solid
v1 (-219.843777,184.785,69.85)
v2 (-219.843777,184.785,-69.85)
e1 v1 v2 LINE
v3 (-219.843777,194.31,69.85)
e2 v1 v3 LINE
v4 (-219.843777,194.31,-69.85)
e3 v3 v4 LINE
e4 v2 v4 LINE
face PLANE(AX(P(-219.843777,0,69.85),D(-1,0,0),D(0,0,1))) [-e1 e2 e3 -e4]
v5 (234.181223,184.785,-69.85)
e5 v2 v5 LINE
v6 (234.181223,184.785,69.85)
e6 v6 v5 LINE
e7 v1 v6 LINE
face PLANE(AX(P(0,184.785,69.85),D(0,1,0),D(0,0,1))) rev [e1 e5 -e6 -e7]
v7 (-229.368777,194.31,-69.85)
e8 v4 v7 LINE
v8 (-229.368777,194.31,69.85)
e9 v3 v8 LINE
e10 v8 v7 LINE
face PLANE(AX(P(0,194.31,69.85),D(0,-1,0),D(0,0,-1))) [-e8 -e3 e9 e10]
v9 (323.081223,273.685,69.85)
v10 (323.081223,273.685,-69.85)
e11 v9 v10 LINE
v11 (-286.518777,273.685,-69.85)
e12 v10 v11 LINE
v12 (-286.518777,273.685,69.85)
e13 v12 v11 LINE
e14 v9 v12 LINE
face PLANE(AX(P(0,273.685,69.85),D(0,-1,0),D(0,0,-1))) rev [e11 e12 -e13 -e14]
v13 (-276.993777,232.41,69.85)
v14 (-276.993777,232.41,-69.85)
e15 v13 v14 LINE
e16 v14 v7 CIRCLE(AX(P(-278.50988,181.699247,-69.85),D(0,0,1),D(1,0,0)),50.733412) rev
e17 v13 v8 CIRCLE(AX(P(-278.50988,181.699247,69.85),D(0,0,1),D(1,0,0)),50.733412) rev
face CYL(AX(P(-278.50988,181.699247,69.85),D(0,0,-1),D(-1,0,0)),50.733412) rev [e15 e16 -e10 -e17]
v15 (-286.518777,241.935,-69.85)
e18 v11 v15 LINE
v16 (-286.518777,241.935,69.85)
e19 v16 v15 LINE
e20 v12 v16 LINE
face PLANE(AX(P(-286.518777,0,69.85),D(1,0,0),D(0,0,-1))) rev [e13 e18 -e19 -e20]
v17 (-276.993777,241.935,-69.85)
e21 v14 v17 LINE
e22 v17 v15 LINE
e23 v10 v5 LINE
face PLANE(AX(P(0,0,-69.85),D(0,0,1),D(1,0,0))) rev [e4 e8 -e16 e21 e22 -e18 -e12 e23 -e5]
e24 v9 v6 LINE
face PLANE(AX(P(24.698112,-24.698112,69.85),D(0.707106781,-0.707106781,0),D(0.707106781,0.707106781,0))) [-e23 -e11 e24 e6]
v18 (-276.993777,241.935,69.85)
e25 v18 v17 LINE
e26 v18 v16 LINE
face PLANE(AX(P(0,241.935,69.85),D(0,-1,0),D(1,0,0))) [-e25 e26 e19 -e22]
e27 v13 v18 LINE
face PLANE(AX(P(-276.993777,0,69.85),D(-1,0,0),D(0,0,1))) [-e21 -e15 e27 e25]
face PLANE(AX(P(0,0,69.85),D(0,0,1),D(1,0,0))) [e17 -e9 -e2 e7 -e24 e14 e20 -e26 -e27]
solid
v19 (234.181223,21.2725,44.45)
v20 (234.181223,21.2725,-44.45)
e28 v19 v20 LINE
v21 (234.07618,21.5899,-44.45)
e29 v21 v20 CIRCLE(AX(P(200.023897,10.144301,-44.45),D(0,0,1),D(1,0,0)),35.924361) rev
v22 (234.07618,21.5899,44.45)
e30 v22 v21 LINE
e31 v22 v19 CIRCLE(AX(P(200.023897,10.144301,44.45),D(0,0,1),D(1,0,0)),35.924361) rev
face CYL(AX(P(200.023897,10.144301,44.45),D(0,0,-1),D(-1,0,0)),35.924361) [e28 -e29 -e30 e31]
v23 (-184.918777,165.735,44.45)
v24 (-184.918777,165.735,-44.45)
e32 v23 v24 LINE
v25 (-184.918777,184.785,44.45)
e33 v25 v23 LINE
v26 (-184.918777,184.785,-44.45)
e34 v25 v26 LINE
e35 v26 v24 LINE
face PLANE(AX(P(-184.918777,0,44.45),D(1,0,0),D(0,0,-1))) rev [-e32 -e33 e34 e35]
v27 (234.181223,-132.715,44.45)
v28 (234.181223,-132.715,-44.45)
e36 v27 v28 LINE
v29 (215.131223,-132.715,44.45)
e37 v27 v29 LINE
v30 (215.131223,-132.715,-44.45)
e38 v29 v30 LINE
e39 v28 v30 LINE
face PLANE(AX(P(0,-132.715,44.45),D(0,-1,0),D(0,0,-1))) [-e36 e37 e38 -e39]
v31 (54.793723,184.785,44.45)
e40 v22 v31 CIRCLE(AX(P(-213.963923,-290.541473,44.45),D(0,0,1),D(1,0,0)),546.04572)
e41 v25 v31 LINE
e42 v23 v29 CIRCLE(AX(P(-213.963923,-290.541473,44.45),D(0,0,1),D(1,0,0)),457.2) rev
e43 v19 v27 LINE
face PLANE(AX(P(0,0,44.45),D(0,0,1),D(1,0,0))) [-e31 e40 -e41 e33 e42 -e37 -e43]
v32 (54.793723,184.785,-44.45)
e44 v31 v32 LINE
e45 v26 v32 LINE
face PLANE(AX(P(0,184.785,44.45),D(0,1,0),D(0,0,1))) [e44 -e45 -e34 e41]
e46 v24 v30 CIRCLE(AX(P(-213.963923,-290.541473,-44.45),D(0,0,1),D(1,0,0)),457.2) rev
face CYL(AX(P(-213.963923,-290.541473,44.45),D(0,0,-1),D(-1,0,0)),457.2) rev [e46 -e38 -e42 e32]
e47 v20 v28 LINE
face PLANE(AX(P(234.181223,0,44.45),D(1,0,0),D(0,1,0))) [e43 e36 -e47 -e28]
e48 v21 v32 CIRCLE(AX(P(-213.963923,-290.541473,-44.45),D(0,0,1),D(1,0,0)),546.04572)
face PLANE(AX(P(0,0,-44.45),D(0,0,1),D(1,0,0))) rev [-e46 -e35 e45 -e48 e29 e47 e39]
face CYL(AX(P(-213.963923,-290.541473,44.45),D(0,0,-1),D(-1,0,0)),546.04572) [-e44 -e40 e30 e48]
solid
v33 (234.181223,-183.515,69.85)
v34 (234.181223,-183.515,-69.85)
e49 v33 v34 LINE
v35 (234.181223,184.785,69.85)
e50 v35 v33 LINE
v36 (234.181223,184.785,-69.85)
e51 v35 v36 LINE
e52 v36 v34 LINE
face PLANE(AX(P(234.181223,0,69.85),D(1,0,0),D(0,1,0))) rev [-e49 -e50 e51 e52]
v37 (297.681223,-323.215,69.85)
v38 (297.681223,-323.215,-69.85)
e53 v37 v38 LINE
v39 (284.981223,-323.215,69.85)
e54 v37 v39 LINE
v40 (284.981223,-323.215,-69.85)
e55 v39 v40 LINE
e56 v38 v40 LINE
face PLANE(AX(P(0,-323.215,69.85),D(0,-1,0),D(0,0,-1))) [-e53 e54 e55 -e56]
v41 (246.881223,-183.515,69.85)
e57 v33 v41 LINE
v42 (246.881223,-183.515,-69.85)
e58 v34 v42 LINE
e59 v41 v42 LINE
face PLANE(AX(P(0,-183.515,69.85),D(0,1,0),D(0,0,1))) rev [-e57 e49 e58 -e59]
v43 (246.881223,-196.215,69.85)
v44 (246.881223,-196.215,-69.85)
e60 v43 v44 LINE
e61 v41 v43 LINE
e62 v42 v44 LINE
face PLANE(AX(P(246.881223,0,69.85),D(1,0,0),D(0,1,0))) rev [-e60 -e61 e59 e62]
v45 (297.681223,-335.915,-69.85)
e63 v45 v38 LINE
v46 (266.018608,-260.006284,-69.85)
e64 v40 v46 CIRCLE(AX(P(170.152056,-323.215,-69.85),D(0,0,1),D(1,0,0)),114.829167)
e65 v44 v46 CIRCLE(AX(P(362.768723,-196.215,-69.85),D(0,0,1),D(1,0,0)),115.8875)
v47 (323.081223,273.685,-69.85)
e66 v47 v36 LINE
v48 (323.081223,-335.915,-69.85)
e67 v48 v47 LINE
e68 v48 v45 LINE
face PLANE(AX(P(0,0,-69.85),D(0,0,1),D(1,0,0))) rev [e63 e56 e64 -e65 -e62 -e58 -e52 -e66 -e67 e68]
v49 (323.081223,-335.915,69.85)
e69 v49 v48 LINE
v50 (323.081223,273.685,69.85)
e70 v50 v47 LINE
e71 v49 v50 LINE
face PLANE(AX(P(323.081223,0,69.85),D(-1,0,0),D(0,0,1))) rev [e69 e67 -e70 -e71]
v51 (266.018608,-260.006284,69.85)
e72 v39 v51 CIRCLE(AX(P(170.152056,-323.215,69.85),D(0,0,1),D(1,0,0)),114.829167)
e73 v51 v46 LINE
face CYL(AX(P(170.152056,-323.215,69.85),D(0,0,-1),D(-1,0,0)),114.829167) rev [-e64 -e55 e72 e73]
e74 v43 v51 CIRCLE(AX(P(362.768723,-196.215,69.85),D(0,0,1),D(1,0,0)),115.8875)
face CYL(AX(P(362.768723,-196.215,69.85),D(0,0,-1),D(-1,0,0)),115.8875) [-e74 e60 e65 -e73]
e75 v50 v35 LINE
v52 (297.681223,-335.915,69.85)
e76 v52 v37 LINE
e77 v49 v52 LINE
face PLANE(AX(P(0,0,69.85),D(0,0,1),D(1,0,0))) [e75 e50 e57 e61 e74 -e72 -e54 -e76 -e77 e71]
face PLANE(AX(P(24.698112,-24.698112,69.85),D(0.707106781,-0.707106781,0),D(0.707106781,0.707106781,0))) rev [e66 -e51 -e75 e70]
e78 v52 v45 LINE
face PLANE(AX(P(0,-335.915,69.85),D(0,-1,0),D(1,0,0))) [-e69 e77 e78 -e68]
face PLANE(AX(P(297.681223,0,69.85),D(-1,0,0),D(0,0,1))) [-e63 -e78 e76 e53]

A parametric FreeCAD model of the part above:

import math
import FreeCAD as App
import Part
import Sketcher

V = App.Vector
Q = App.Units.Quantity

doc = App.newDocument("Part")
body = doc.addObject("PartDesign::Body", "Body")

# Sketch on XY plane
sketch1 = body.newObject("Sketcher::SketchObject", "Sketch")
sketch1.AttachmentSupport = (doc.getObject("XY_Plane"), [""])
sketch1.MapMode = "FlatFace"
sketch1.addGeometry([
    Part.LineSegment(V(-277, 242, 0), V(-277, 232, 0)),  # 0
    Part.ArcOfCircle(Part.Circle(V(-279, 182, 0), V(0, 0, 1), 51), math.radians(14), math.radians(88)),  # 1
    Part.LineSegment(V(-229, 194, 0), V(-220, 194, 0)),  # 2
    Part.LineSegment(V(-220, 194, 0), V(-220, 185, 0)),  # 3
    Part.LineSegment(V(-220, 185, 0), V(234, 185, 0)),  # 4
    Part.LineSegment(V(234, 185, 0), V(323, 274, 0)),  # 5
    Part.LineSegment(V(323, 274, 0), V(-287, 274, 0)),  # 6
    Part.LineSegment(V(-287, 274, 0), V(-287, 242, 0)),  # 7
    Part.LineSegment(V(-287, 242, 0), V(-277, 242, 0)),  # 8
], False)
sketch1.addConstraint([
    Sketcher.Constraint("Coincident", 0, 2, 1, 2),
    Sketcher.Constraint("Coincident", 1, 1, 2, 1),
    Sketcher.Constraint("Coincident", 2, 2, 3, 1),
    Sketcher.Constraint("Coincident", 3, 2, 4, 1),
    Sketcher.Constraint("Coincident", 4, 2, 5, 1),
    Sketcher.Constraint("Coincident", 5, 2, 6, 1),
    Sketcher.Constraint("Coincident", 6, 2, 7, 1),
    Sketcher.Constraint("Coincident", 7, 2, 8, 1),
    Sketcher.Constraint("Coincident", 8, 2, 0, 1),
    Sketcher.Constraint("Vertical", 0),
    Sketcher.Constraint("Horizontal", 2),
    Sketcher.Constraint("Vertical", 3),
    Sketcher.Constraint("Horizontal", 4),
    Sketcher.Constraint("Horizontal", 6),
    Sketcher.Constraint("Vertical", 7),
    Sketcher.Constraint("Horizontal", 8),
    Sketcher.Constraint("Equal", 2, 8),
    Sketcher.Constraint("Equal", 8, 0),
    Sketcher.Constraint("Equal", 0, 3),
    Sketcher.Constraint("DistanceX", 6, 2, 6, 1, Q("24 in")),
    Sketcher.Constraint("Angle", 5, Q("45 deg")),
    Sketcher.Constraint("DistanceY", 7, 2, 7, 1, Q("1.25 in")),
    Sketcher.Constraint("DistanceY", 1, 1, 0, 2, Q("1.5 in")),
    Sketcher.Constraint("DistanceX", 4, 2, 5, 2, Q("3.5 in")),
    Sketcher.Constraint("DistanceX", 4, 1, 4, 2, Q("17.875 in")),
    Sketcher.Constraint("DistanceY", -1, 1, 0, 2, Q("9.15 in")),
    Sketcher.Constraint("Radius", 1, 50.733412),
    Sketcher.Constraint("DistanceX", 1, 3, -1, 1, 278.50988),
])
pad1 = body.newObject("PartDesign::Pad", "Pad")
pad1.Profile = sketch1
pad1.Length = Q("5.5 in")
pad1.Midplane = True
body2 = doc.addObject("PartDesign::Body", "Body001")

# Sketch on XY plane
sketch2 = body2.newObject("Sketcher::SketchObject", "Sketch001")
sketch2.AttachmentSupport = (doc.getObject("XY_Plane001"), [""])
sketch2.MapMode = "FlatFace"
sketch2.addGeometry([
    Part.ArcOfCircle(Part.Circle(V(-213.96, -290.54, 0), V(0, 0, 1), 546.05), math.radians(35), math.radians(61)),  # 0
    Part.LineSegment(V(54.79, 184.78, 0), V(-184.92, 184.78, 0)),  # 1
    Part.LineSegment(V(-184.92, 184.78, 0), V(-184.92, 165.74, 0)),  # 2
    Part.ArcOfCircle(Part.Circle(V(-213.96, -290.54, 0), V(0, 0, 1), 457.2), math.radians(20), math.radians(86)),  # 3
    Part.LineSegment(V(215.13, -132.72, 0), V(234.18, -132.72, 0)),  # 4
    Part.LineSegment(V(234.18, -132.72, 0), V(234.18, 21.27, 0)),  # 5
    Part.ArcOfCircle(Part.Circle(V(200.02, 10.14, 0), V(0, 0, 1), 35.92), math.radians(18.05), math.radians(18.58)),  # 6
], False)
sketch2.addConstraint([
    Sketcher.Constraint("Coincident", 0, 2, 1, 1),
    Sketcher.Constraint("Coincident", 1, 2, 2, 1),
    Sketcher.Constraint("Coincident", 2, 2, 3, 2),
    Sketcher.Constraint("Coincident", 3, 1, 4, 1),
    Sketcher.Constraint("Coincident", 4, 2, 5, 1),
    Sketcher.Constraint("Coincident", 5, 2, 6, 1),
    Sketcher.Constraint("Coincident", 6, 2, 0, 1),
    Sketcher.Constraint("Horizontal", 1),
    Sketcher.Constraint("Vertical", 2),
    Sketcher.Constraint("Horizontal", 4),
    Sketcher.Constraint("Vertical", 5),
    Sketcher.Constraint("Coincident", 3, 3, 0, 3),
    Sketcher.Constraint("Equal", 4, 2),
    Sketcher.Constraint("Radius", 3, Q("18 in")),
    Sketcher.Constraint("DistanceX", 4, 1, 4, 2, Q("0.75 in")),
    Sketcher.Constraint("DistanceY", 4, 2, 0, 2, Q("12.5 in")),
    Sketcher.Constraint("DistanceX", 2, 2, 5, 2, Q("16.5 in")),
    Sketcher.Constraint("DistanceX", 1, 2, 1, 1, Q("9.4375 in")),
    Sketcher.Constraint("DistanceY", 5, 1, 5, 2, Q("6.0625 in")),
    Sketcher.Constraint("DistanceY", -1, 1, 1, 2, Q("7.275 in")),
    Sketcher.Constraint("Radius", 6, 35.924411),
    Sketcher.Constraint("DistanceX", -1, 1, 6, 3, 200.02385),
    Sketcher.Constraint("DistanceX", -1, 1, 6, 2, 234.07618),
])
pad2 = body2.newObject("PartDesign::Pad", "Pad001")
pad2.Profile = sketch2
pad2.Length = Q("3.5 in")
pad2.Midplane = True
body3 = doc.addObject("PartDesign::Body", "Body002")

# Sketch on XY plane
sketch3 = body3.newObject("Sketcher::SketchObject", "Sketch002")
sketch3.AttachmentSupport = (doc.getObject("XY_Plane002"), [""])
sketch3.MapMode = "FlatFace"
sketch3.addGeometry([
    Part.LineSegment(V(323, -336, 0), V(323, 274, 0)),  # 0
    Part.LineSegment(V(323, 274, 0), V(234, 185, 0)),  # 1
    Part.LineSegment(V(234, 185, 0), V(234, -184, 0)),  # 2
    Part.LineSegment(V(234, -184, 0), V(247, -184, 0)),  # 3
    Part.LineSegment(V(247, -184, 0), V(247, -196, 0)),  # 4
    Part.ArcOfCircle(Part.Circle(V(363, -196, 0), V(0, 0, 1), 116), math.radians(180), math.radians(213)),  # 5
    Part.ArcOfCircle(Part.Circle(V(170, -323, 0), V(0, 0, 1), 115), math.radians(0), math.radians(33)),  # 6
    Part.LineSegment(V(285, -323, 0), V(298, -323, 0)),  # 7
    Part.LineSegment(V(298, -323, 0), V(298, -336, 0)),  # 8
    Part.LineSegment(V(298, -336, 0), V(323, -336, 0)),  # 9
], False)
sketch3.addConstraint([
    Sketcher.Constraint("Coincident", 0, 2, 1, 1),
    Sketcher.Constraint("Coincident", 1, 2, 2, 1),
    Sketcher.Constraint("Coincident", 2, 2, 3, 1),
    Sketcher.Constraint("Coincident", 3, 2, 4, 1),
    Sketcher.Constraint("Tangent", 4, 2, 5, 1),
    Sketcher.Constraint("Tangent", 5, 2, 6, 2),
    Sketcher.Constraint("Coincident", 6, 1, 7, 1),
    Sketcher.Constraint("Coincident", 7, 2, 8, 1),
    Sketcher.Constraint("Coincident", 8, 2, 9, 1),
    Sketcher.Constraint("Coincident", 9, 2, 0, 1),
    Sketcher.Constraint("Vertical", 0),
    Sketcher.Constraint("Vertical", 2),
    Sketcher.Constraint("Horizontal", 3),
    Sketcher.Constraint("Vertical", 4),
    Sketcher.Constraint("Horizontal", 7),
    Sketcher.Constraint("Vertical", 8),
    Sketcher.Constraint("Horizontal", 9),
    Sketcher.Constraint("Equal", 3, 7),
    Sketcher.Constraint("Equal", 7, 4),
    Sketcher.Constraint("Equal", 4, 8),
    Sketcher.Constraint("DistanceX", 9, 1, 9, 2, Q("1 in")),
    Sketcher.Constraint("DistanceY", 0, 1, 0, 2, Q("24 in")),
    Sketcher.Constraint("DistanceX", 3, 1, 3, 2, Q("0.5 in")),
    Sketcher.Constraint("DistanceY", 2, 2, 2, 1, Q("14.5 in")),
    Sketcher.Constraint("Angle", 1, Q("-135 deg")),
    Sketcher.Constraint("Radius", 5, Q("4.5625 in")),
    Sketcher.Constraint("DistanceY", 6, 3, 5, 3, Q("5 in")),
    Sketcher.Constraint("DistanceY", 2, 2, 0, 2, Q("18 in")),
    Sketcher.Constraint("DistanceY", 5, 3, -1, 1, Q("7.725 in")),
    Sketcher.Constraint("DistanceX", -1, 1, 6, 3, Q("6.6988999 in")),
])
pad3 = body3.newObject("PartDesign::Pad", "Pad002")
pad3.Profile = sketch3
pad3.Length = Q("5.5 in")
pad3.Midplane = True

doc.recompute()
